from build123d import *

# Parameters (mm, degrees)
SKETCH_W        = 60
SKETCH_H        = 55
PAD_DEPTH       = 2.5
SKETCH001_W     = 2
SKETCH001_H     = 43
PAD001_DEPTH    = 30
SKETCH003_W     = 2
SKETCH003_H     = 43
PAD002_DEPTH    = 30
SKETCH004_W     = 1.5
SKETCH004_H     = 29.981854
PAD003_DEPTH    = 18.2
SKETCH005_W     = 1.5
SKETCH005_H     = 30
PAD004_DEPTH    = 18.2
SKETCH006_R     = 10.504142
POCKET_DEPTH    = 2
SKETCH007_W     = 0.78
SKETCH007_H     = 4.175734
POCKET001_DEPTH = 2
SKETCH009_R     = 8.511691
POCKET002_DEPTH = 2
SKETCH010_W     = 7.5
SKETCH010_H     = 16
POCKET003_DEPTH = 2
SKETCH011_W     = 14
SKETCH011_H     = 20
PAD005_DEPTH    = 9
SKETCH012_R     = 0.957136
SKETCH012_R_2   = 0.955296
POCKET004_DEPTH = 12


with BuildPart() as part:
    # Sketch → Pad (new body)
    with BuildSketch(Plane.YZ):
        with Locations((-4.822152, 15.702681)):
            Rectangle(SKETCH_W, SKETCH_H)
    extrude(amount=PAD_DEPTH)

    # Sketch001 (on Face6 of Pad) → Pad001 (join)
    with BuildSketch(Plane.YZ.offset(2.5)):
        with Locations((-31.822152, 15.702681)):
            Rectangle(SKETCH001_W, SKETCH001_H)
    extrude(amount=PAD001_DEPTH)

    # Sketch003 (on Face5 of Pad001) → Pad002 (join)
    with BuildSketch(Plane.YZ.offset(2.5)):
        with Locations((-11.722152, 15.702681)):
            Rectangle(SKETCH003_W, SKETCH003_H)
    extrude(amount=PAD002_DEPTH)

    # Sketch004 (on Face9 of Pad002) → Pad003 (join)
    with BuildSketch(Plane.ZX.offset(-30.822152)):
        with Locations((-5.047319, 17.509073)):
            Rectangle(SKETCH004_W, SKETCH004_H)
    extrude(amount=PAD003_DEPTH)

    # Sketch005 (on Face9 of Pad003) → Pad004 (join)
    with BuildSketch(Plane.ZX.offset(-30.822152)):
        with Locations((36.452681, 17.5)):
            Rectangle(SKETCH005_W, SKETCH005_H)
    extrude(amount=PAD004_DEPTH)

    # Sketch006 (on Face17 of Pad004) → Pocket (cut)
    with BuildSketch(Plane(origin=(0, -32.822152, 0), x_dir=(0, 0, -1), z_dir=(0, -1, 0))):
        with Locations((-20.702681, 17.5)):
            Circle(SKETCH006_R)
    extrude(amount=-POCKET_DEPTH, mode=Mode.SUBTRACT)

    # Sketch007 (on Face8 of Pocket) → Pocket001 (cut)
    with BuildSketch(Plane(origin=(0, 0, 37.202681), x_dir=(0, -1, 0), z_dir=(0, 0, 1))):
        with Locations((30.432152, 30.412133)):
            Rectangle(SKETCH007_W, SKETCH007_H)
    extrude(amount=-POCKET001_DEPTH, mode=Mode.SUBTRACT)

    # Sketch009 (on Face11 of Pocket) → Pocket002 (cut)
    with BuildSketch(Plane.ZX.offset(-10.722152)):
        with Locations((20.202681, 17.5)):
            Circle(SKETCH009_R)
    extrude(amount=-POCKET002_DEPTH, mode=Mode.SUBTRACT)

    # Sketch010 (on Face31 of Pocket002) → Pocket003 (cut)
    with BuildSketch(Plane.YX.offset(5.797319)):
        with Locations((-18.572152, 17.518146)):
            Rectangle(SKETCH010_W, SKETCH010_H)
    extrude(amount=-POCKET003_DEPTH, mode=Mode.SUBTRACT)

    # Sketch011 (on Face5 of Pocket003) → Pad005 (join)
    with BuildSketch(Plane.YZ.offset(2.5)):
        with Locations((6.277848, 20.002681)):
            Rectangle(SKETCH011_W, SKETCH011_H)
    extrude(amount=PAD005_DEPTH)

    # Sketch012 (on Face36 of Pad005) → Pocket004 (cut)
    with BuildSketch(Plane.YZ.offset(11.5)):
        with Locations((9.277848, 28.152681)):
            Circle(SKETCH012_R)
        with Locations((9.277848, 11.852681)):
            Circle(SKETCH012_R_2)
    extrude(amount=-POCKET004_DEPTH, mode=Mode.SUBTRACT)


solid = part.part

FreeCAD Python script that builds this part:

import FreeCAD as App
import Part
import Sketcher
Q = App.Units.Quantity


def add_polygon(sketch, points):
    """Adds a closed chain of lines whose ends are joined by coincident constraints."""
    first, n = sketch.GeometryCount, len(points)
    for a, b in zip(points, points[1:] + points[:1]):
        sketch.addGeometry(Part.LineSegment(App.Vector(*a, 0), App.Vector(*b, 0)), False)
    for i in range(n):
        sketch.addConstraint(Sketcher.Constraint("Coincident", first + i, 2, first + (i + 1) % n, 1))

doc = App.newDocument("Part")
body = doc.addObject("PartDesign::Body", "Body")

# Sketch on YZ plane
sketch1 = body.newObject("Sketcher::SketchObject", "Sketch")
sketch1.AttachmentSupport = (doc.getObject("YZ_Plane"), [""])
sketch1.MapMode = "FlatFace"
add_polygon(sketch1, [(-35, 43), (-35, -12), (25, -12), (25, 43)])  # lines 0-3
sketch1.addConstraint([
    Sketcher.Constraint("Vertical", 0),
    Sketcher.Constraint("Horizontal", 1),
    Sketcher.Constraint("Vertical", 2),
    Sketcher.Constraint("Horizontal", 3),
    Sketcher.Constraint("DistanceX", 1, 1, 1, 2, Q("60 mm")),
    Sketcher.Constraint("DistanceY", 0, 2, 0, 1, Q("55 mm")),
    Sketcher.Constraint("DistanceY", 0, 2, -1, 1, Q("11.797319 mm")),
    Sketcher.Constraint("DistanceX", -1, 1, 1, 2, Q("25.177848 mm")),
])
pad1 = body.newObject("PartDesign::Pad", "Pad")
pad1.Profile = sketch1
pad1.Length = 2.5

# Sketch on YZ plane
sketch2 = body.newObject("Sketcher::SketchObject", "Sketch001")
sketch2.AttachmentSupport = (doc.getObject("YZ_Plane"), [""])
sketch2.MapMode = "FlatFace"
sketch2.AttachmentOffset = App.Placement(App.Vector(0, 0, 2.5), App.Rotation())
add_polygon(sketch2, [(-32.8, 37.2), (-32.8, -5.8), (-30.8, -5.8), (-30.8, 37.2)])  # lines 0-3
sketch2.addConstraint([
    Sketcher.Constraint("Vertical", 0),
    Sketcher.Constraint("Horizontal", 1),
    Sketcher.Constraint("Vertical", 2),
    Sketcher.Constraint("Horizontal", 3),
    Sketcher.Constraint("DistanceX", 1, 1, 1, 2, Q("2 mm")),
    Sketcher.Constraint("DistanceY", 0, 2, 0, 1, Q("43 mm")),
    Sketcher.Constraint("DistanceY", 0, 2, -1, 1, Q("5.797319 mm")),
    Sketcher.Constraint("DistanceX", 1, 2, -1, 1, Q("30.822152 mm")),
])
pad2 = body.newObject("PartDesign::Pad", "Pad001")
pad2.Profile = sketch2
pad2.Length = 30

# Sketch on YZ plane
sketch3 = body.newObject("Sketcher::SketchObject", "Sketch002")
sketch3.AttachmentSupport = (doc.getObject("YZ_Plane"), [""])
sketch3.MapMode = "FlatFace"
sketch3.AttachmentOffset = App.Placement(App.Vector(0, 0, 2.5), App.Rotation())
add_polygon(sketch3, [(-12.7, 37.2), (-12.7, -5.8), (-10.7, -5.8), (-10.7, 37.2)])  # lines 0-3
sketch3.addConstraint([
    Sketcher.Constraint("Vertical", 0),
    Sketcher.Constraint("Horizontal", 1),
    Sketcher.Constraint("Vertical", 2),
    Sketcher.Constraint("Horizontal", 3),
    Sketcher.Constraint("DistanceX", 1, 1, 1, 2, Q("2 mm")),
    Sketcher.Constraint("DistanceY", 0, 2, 0, 1, Q("43 mm")),
    Sketcher.Constraint("DistanceY", 0, 2, -1, 1, Q("5.797319 mm")),
    Sketcher.Constraint("DistanceX", 0, 2, -1, 1, Q("12.722152 mm")),
])
pad3 = body.newObject("PartDesign::Pad", "Pad002")
pad3.Profile = sketch3
pad3.Length = 30

# Sketch on XZ plane
sketch4 = body.newObject("Sketcher::SketchObject", "Sketch003")
sketch4.AttachmentSupport = (doc.getObject("XZ_Plane"), [""])
sketch4.MapMode = "FlatFace"
sketch4.AttachmentOffset = App.Placement(App.Vector(0, 0, 30.822152), App.Rotation())
add_polygon(sketch4, [(32.5, -5.8), (2.5, -5.8), (2.5, -4.3), (32.5, -4.3)])  # lines 0-3
sketch4.addConstraint([
    Sketcher.Constraint("Horizontal", 0),
    Sketcher.Constraint("Vertical", 1),
    Sketcher.Constraint("Horizontal", 2),
    Sketcher.Constraint("Vertical", 3),
    Sketcher.Constraint("DistanceY", 1, 1, 1, 2, Q("1.5 mm")),
    Sketcher.Constraint("DistanceX", -1, 1, 2, 2, Q("32.5 mm")),
    Sketcher.Constraint("DistanceX", 0, 2, 0, 1, Q("29.981854 mm")),
    Sketcher.Constraint("DistanceY", 0, 2, -1, 1, Q("5.797319 mm")),
])
pad4 = body.newObject("PartDesign::Pad", "Pad003")
pad4.Profile = sketch4
pad4.Length = 18.2
pad4.Reversed = True

# Sketch on XZ plane
sketch5 = body.newObject("Sketcher::SketchObject", "Sketch004")
sketch5.AttachmentSupport = (doc.getObject("XZ_Plane"), [""])
sketch5.MapMode = "FlatFace"
sketch5.AttachmentOffset = App.Placement(App.Vector(0, 0, 30.822152), App.Rotation())
add_polygon(sketch5, [(32.5, 35.7), (2.5, 35.7), (2.5, 37.2), (32.5, 37.2)])  # lines 0-3
sketch5.addConstraint([
    Sketcher.Constraint("Horizontal", 0),
    Sketcher.Constraint("Vertical", 1),
    Sketcher.Constraint("Horizontal", 2),
    Sketcher.Constraint("Vertical", 3),
    Sketcher.Constraint("DistanceX", 0, 2, 0, 1, Q("30 mm")),
    Sketcher.Constraint("DistanceY", 1, 1, 1, 2, Q("1.5 mm")),
    Sketcher.Constraint("DistanceX", -1, 1, 0, 2, Q("2.5 mm")),
    Sketcher.Constraint("DistanceY", -1, 1, 0, 2, Q("35.702681 mm")),
])
pad5 = body.newObject("PartDesign::Pad", "Pad004")
pad5.Profile = sketch5
pad5.Length = 18.2
pad5.Reversed = True

# Sketch on XZ plane
sketch6 = body.newObject("Sketcher::SketchObject", "Sketch005")
sketch6.AttachmentSupport = (doc.getObject("XZ_Plane"), [""])
sketch6.MapMode = "FlatFace"
sketch6.AttachmentOffset = App.Placement(App.Vector(0, 0, 32.822152), App.Rotation())
sketch6.addGeometry(Part.Circle(App.Vector(18, 21, 0), App.Vector(0, 0, 1), 11), False)
sketch6.addConstraint([
    Sketcher.Constraint("DistanceX", -1, 1, 0, 3, Q("17.5 mm")),
    Sketcher.Constraint("Diameter", 0, Q("21.008284 mm")),
    Sketcher.Constraint("DistanceY", -1, 1, 0, 3, Q("20.702681 mm")),
])
pocket1 = body.newObject("PartDesign::Pocket", "Pocket")
pocket1.Profile = sketch6
pocket1.Length = 2

# Sketch on XY plane
sketch7 = body.newObject("Sketcher::SketchObject", "Sketch006")
sketch7.AttachmentSupport = (doc.getObject("XY_Plane"), [""])
sketch7.MapMode = "FlatFace"
sketch7.AttachmentOffset = App.Placement(App.Vector(0, 0, 37.202681), App.Rotation())
add_polygon(sketch7, [(32.5, -30), (28.3, -30), (28.3, -30.8), (32.5, -30.8)])  # lines 0-3
sketch7.addConstraint([
    Sketcher.Constraint("Horizontal", 0),
    Sketcher.Constraint("Vertical", 1),
    Sketcher.Constraint("Horizontal", 2),
    Sketcher.Constraint("Vertical", 3),
    Sketcher.Constraint("DistanceY", 1, 2, 1, 1, Q("0.78 mm")),
    Sketcher.Constraint("DistanceX", -1, 1, 2, 2, Q("32.5 mm")),
    Sketcher.Constraint("DistanceX", 0, 2, 0, 1, Q("4.175734 mm")),
    Sketcher.Constraint("DistanceY", 1, 2, -1, 1, Q("30.822152 mm")),
])
pocket2 = body.newObject("PartDesign::Pocket", "Pocket001")
pocket2.Profile = sketch7
pocket2.Length = 2

# Sketch on XZ plane
sketch8 = body.newObject("Sketcher::SketchObject", "Sketch007")
sketch8.AttachmentSupport = (doc.getObject("XZ_Plane"), [""])
sketch8.MapMode = "FlatFace"
sketch8.AttachmentOffset = App.Placement(App.Vector(0, 0, 10.722152), App.Rotation())
sketch8.addGeometry(Part.Circle(App.Vector(18, 20, 0), App.Vector(0, 0, 1), 9), False)
sketch8.addConstraint([
    Sketcher.Constraint("DistanceX", -1, 1, 0, 3, Q("17.5 mm")),
    Sketcher.Constraint("Diameter", 0, Q("17.023382 mm")),
    Sketcher.Constraint("DistanceY", -1, 1, 0, 3, Q("20.202681 mm")),
])
pocket3 = body.newObject("PartDesign::Pocket", "Pocket002")
pocket3.Profile = sketch8
pocket3.Length = 2
pocket3.Reversed = True

# Sketch on XY plane
sketch9 = body.newObject("Sketcher::SketchObject", "Sketch008")
sketch9.AttachmentSupport = (doc.getObject("XY_Plane"), [""])
sketch9.MapMode = "FlatFace"
sketch9.AttachmentOffset = App.Placement(App.Vector(0, 0, -5.797319), App.Rotation())
add_polygon(sketch9, [(26, -22), (10, -22), (10, -15), (26, -15)])  # lines 0-3
sketch9.addConstraint([
    Sketcher.Constraint("Horizontal", 0),
    Sketcher.Constraint("Vertical", 1),
    Sketcher.Constraint("Horizontal", 2),
    Sketcher.Constraint("Vertical", 3),
    Sketcher.Constraint("DistanceX", 0, 2, 0, 1, Q("16 mm")),
    Sketcher.Constraint("DistanceY", 1, 1, 1, 2, Q("7.5 mm")),
    Sketcher.Constraint("DistanceY", 0, 2, -1, 1, Q("22.322152 mm")),
    Sketcher.Constraint("DistanceX", -1, 1, 0, 2, Q("9.518146 mm")),
])
pocket4 = body.newObject("PartDesign::Pocket", "Pocket003")
pocket4.Profile = sketch9
pocket4.Length = 2
pocket4.Reversed = True

# Sketch on YZ plane
sketch10 = body.newObject("Sketcher::SketchObject", "Sketch009")
sketch10.AttachmentSupport = (doc.getObject("YZ_Plane"), [""])
sketch10.MapMode = "FlatFace"
sketch10.AttachmentOffset = App.Placement(App.Vector(0, 0, 2.5), App.Rotation())
add_polygon(sketch10, [(-1, 30), (-1, 10), (13, 10), (13, 30)])  # lines 0-3
sketch10.addConstraint([
    Sketcher.Constraint("Vertical", 0),
    Sketcher.Constraint("Horizontal", 1),
    Sketcher.Constraint("Vertical", 2),
    Sketcher.Constraint("Horizontal", 3),
    Sketcher.Constraint("DistanceX", 1, 1, 1, 2, Q("14 mm")),
    Sketcher.Constraint("DistanceY", 0, 2, 0, 1, Q("20 mm")),
    Sketcher.Constraint("DistanceY", -1, 1, 0, 2, Q("10.002681 mm")),
    Sketcher.Constraint("DistanceX", 0, 2, -1, 1, Q("0.722152 mm")),
])
pad6 = body.newObject("PartDesign::Pad", "Pad005")
pad6.Profile = sketch10
pad6.Length = 9

# Sketch on YZ plane
sketch11 = body.newObject("Sketcher::SketchObject", "Sketch010")
sketch11.AttachmentSupport = (doc.getObject("YZ_Plane"), [""])
sketch11.MapMode = "FlatFace"
sketch11.AttachmentOffset = App.Placement(App.Vector(0, 0, 11.5), App.Rotation())
sketch11.addGeometry([
    Part.Circle(App.Vector(9.3, 28.2, 0), App.Vector(0, 0, 1), 1),
    Part.Circle(App.Vector(9.3, 11.9, 0), App.Vector(0, 0, 1), 1),
], False)
sketch11.addConstraint([
    Sketcher.Constraint("Vertical", 0, 3, 1, 3),
    Sketcher.Constraint("DistanceY", 1, 3, 0, 3, Q("16.3 mm")),
    Sketcher.Constraint("Diameter", 0, Q("1.914272 mm")),
    Sketcher.Constraint("Diameter", 1, Q("1.910592 mm")),
    Sketcher.Constraint("DistanceY", -1, 1, 0, 3, Q("28.152681 mm")),
    Sketcher.Constraint("DistanceX", -1, 1, 0, 3, Q("9.277848 mm")),
])
pocket5 = body.newObject("PartDesign::Pocket", "Pocket004")
pocket5.Profile = sketch11
pocket5.Length = 12

doc.recompute()
